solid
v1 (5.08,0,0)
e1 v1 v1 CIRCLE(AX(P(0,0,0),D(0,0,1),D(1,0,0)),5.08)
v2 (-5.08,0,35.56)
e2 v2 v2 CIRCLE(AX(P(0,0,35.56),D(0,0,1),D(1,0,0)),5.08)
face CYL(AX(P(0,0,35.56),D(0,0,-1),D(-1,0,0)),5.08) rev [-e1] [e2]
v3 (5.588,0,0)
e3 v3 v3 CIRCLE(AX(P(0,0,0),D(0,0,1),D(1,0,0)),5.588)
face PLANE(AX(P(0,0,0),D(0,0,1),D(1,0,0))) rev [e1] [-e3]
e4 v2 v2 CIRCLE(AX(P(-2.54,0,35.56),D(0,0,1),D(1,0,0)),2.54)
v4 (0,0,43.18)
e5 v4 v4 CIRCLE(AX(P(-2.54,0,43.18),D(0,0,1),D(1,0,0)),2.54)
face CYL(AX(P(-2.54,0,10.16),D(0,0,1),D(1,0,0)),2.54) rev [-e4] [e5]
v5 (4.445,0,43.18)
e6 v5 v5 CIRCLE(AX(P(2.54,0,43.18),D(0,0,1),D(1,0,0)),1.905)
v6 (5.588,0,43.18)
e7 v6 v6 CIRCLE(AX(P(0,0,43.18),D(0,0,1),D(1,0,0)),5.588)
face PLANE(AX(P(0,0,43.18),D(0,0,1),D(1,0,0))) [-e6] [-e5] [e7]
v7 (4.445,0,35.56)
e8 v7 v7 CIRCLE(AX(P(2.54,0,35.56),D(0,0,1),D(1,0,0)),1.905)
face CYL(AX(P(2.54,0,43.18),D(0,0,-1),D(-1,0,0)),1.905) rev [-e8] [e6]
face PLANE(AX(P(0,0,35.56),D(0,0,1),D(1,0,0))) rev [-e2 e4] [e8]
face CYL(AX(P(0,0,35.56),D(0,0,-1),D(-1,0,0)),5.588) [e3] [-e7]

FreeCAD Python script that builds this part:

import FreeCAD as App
import Part
import Sketcher
Q = App.Units.Quantity

doc = App.newDocument("Part")
body = doc.addObject("PartDesign::Body", "Body")

# Sketch on XY plane
sketch1 = body.newObject("Sketcher::SketchObject", "Sketch")
sketch1.AttachmentSupport = (doc.getObject("XY_Plane"), [""])
sketch1.MapMode = "FlatFace"
sketch1.addGeometry([
    Part.Circle(App.Vector(0, 0, 0), App.Vector(0, 0, 1), 6),
    Part.Circle(App.Vector(0, 0, 0), App.Vector(0, 0, 1), 5),
], False)
sketch1.addConstraint([
    Sketcher.Constraint("Coincident", 0, 3, -1, 1),
    Sketcher.Constraint("Coincident", 1, 3, -1, 1),
    Sketcher.Constraint("Diameter", 1, Q("0.4 in")),
    Sketcher.Constraint("Diameter", 0, Q("0.44 in")),
])
pad1 = body.newObject("PartDesign::Pad", "Pad")
pad1.Profile = sketch1
pad1.Length = Q("1.4 in")

# Sketch on XY plane
sketch2 = body.newObject("Sketcher::SketchObject", "Sketch001")
sketch2.AttachmentSupport = (doc.getObject("XY_Plane"), [""])
sketch2.MapMode = "FlatFace"
sketch2.AttachmentOffset = App.Placement(App.Vector(0, 0, 1.4 * 25.4), App.Rotation())
sketch2.addGeometry([
    Part.Circle(App.Vector(0, 0, 0), App.Vector(0, 0, 1), 5.6),
    Part.Circle(App.Vector(2.5, 0, 0), App.Vector(0, 0, 1), 1.9),
], False)
sketch2.addConstraint([
    Sketcher.Constraint("Coincident", 0, 3, -1, 1),
    Sketcher.Constraint("PointOnObject", 1, 3, -1),
    Sketcher.Constraint("Diameter", 0, Q("0.44 in")),
    Sketcher.Constraint("Diameter", 1, Q("0.15 in")),
    Sketcher.Constraint("DistanceX", -1, 1, 1, 3, Q("0.1 in")),
])
pad2 = body.newObject("PartDesign::Pad", "Pad001")
pad2.Profile = sketch2
pad2.Length = Q("0.3 in")

# Sketch on XY plane
sketch3 = body.newObject("Sketcher::SketchObject", "Sketch002")
sketch3.AttachmentSupport = (doc.getObject("XY_Plane"), [""])
sketch3.MapMode = "FlatFace"
sketch3.AttachmentOffset = App.Placement(App.Vector(0, 0, 1.7 * 25.4), App.Rotation())
sketch3.addGeometry(Part.Circle(App.Vector(-2.5, 0, 0), App.Vector(0, 0, 1), 2.5), False)
sketch3.addConstraint([
    Sketcher.Constraint("PointOnObject", 0, 3, -1),
    Sketcher.Constraint("Diameter", 0, Q("0.2 in")),
    Sketcher.Constraint("DistanceX", 0, 3, -1, 1, Q("0.1 in")),
])
pocket1 = body.newObject("PartDesign::Pocket", "Pocket")
pocket1.Profile = sketch3
pocket1.Length = Q("1.3 in")

doc.recompute()
